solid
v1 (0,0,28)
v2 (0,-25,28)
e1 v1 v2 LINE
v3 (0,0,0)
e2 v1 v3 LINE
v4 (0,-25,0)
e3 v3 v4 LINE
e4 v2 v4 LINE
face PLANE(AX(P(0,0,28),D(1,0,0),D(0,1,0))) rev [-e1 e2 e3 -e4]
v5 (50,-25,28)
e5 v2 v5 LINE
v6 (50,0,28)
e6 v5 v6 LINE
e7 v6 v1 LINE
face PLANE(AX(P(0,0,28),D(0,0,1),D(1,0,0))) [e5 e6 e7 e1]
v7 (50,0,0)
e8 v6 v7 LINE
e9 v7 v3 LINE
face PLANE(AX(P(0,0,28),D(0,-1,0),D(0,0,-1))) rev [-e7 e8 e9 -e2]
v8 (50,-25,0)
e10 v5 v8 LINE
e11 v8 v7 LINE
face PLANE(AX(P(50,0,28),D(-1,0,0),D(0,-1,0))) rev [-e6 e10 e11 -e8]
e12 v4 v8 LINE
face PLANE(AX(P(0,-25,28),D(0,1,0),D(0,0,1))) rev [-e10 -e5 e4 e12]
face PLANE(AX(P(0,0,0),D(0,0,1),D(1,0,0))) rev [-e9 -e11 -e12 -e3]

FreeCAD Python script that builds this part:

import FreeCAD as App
import Part
import Sketcher

V = App.Vector


def add_polygon(sketch, points):
    """Adds a closed chain of lines whose ends are joined by coincident constraints."""
    first, n = sketch.GeometryCount, len(points)
    for a, b in zip(points, points[1:] + points[:1]):
        sketch.addGeometry(Part.LineSegment(App.Vector(*a, 0), App.Vector(*b, 0)), False)
    for i in range(n):
        sketch.addConstraint(Sketcher.Constraint("Coincident", first + i, 2, first + (i + 1) % n, 1))

doc = App.newDocument("Part")
body = doc.addObject("PartDesign::Body", "Body")

# Sketch on XY plane
sketch1 = doc.addObject("Sketcher::SketchObject", "Sketch")
body.addObject(sketch1)
sketch1.AttachmentSupport = (doc.XY_Plane, [""])
sketch1.MapMode = "FlatFace"
add_polygon(sketch1, [(0, 0), (0, -25), (50, -25), (50, 0)])  # lines 0-3
sketch1.addConstraint([
    Sketcher.Constraint("Vertical", 0),
    Sketcher.Constraint("Horizontal", 1),
    Sketcher.Constraint("Vertical", 2),
    Sketcher.Constraint("Horizontal", 3),
    Sketcher.Constraint("Coincident", 3, 2, -1, 1),
    Sketcher.Constraint("DistanceX", 1, 1, 1, 2, 50.0),
    Sketcher.Constraint("DistanceY", 0, 2, 0, 1, 25.0),
])
pad1 = doc.addObject("PartDesign::Pad", "Pad")
body.addObject(pad1)
pad1.Profile = sketch1
pad1.Length = 28

doc.recompute()
